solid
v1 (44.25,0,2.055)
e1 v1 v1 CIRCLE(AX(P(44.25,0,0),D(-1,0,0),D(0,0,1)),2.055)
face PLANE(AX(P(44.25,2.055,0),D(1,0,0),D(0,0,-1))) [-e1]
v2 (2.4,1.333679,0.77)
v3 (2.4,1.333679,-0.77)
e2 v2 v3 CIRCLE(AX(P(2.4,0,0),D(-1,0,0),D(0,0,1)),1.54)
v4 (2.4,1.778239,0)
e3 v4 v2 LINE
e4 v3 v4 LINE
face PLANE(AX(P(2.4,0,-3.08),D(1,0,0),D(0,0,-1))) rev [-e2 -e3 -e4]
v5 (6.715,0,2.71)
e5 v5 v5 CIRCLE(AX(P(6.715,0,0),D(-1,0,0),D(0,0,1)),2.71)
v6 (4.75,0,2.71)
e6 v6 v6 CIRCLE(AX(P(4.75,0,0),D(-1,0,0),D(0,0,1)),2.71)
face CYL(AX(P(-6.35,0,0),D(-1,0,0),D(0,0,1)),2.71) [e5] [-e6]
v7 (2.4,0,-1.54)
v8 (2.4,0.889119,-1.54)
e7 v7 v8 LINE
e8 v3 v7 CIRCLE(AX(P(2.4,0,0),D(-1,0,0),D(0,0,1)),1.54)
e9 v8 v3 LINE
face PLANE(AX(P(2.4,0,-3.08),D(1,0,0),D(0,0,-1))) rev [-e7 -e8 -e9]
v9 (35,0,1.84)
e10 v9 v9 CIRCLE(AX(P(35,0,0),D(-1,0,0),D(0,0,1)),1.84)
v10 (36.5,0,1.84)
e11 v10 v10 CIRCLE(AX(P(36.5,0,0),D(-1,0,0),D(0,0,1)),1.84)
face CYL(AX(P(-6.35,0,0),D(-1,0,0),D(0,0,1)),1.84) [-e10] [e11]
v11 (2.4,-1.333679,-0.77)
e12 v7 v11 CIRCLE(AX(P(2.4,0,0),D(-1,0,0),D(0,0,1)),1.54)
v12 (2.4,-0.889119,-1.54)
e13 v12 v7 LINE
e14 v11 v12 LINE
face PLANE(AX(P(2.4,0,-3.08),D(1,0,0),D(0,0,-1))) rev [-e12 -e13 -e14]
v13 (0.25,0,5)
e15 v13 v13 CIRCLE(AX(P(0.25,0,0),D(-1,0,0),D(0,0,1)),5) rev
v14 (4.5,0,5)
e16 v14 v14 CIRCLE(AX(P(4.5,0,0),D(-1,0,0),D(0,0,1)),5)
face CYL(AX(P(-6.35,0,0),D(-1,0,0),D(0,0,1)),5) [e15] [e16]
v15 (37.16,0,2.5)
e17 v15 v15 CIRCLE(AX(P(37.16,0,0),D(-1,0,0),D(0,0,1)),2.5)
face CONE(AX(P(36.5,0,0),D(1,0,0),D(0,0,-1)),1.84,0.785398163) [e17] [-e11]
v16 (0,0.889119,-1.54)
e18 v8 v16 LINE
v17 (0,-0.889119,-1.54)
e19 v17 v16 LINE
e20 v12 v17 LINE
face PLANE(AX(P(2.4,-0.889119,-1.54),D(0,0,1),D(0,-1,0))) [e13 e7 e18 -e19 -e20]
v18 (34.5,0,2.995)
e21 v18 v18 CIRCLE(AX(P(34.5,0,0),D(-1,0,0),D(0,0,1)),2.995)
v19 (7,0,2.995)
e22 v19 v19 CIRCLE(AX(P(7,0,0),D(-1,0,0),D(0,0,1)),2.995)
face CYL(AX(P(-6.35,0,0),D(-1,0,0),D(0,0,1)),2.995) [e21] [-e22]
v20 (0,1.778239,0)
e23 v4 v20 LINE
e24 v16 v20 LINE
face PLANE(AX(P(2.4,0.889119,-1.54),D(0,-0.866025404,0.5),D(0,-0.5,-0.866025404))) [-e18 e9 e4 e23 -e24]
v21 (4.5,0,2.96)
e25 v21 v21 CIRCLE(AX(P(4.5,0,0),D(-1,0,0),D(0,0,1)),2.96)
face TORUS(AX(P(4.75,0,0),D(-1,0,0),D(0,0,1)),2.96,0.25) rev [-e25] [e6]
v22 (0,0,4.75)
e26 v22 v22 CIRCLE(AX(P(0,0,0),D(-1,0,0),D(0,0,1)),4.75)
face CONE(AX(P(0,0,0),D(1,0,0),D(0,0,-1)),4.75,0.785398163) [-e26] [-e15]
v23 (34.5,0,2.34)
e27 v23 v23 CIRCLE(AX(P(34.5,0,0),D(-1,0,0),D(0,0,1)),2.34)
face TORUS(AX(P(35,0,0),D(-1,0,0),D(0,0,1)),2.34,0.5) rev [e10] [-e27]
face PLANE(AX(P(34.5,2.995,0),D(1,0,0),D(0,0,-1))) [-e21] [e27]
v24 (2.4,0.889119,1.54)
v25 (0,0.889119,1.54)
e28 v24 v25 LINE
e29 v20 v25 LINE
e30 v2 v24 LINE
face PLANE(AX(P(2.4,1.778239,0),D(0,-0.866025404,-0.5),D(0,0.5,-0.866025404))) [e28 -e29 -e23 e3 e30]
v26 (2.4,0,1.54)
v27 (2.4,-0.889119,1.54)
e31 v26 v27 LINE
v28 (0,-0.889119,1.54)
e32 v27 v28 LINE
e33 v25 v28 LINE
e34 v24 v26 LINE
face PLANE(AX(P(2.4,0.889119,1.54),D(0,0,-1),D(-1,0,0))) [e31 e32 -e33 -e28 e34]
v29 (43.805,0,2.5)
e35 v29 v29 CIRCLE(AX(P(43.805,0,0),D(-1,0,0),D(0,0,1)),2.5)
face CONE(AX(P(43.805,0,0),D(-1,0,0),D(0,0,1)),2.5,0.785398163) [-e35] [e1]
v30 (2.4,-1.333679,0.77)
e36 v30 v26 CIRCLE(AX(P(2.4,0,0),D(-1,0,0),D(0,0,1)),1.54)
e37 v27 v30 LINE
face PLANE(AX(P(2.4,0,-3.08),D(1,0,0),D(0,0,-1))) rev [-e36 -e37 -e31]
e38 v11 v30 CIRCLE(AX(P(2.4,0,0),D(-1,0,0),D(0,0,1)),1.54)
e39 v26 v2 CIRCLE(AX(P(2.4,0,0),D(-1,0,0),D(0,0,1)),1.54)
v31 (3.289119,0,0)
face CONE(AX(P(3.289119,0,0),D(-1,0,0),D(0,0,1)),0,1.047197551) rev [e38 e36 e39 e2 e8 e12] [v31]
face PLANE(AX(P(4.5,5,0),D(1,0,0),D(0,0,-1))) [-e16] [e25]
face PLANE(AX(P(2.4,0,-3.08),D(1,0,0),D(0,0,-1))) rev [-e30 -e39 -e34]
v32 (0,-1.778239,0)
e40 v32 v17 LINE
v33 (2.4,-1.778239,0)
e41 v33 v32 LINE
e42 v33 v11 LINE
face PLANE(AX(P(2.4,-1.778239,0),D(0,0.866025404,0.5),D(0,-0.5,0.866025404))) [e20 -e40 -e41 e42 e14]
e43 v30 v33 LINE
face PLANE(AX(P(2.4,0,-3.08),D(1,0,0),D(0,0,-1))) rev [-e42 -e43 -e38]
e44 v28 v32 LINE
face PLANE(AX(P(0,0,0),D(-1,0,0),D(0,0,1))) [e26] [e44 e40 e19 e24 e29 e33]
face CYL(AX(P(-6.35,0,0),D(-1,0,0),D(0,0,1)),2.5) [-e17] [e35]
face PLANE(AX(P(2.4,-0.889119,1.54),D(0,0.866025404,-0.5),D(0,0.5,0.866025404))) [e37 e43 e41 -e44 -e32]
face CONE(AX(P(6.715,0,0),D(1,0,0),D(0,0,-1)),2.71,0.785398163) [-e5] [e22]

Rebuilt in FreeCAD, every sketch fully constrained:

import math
import FreeCAD as App
import Part
import Sketcher
Q = App.Units.Quantity


def edges_at(feature, points):
    """Names of the edges that pass closest to the given points."""
    edges = feature.Shape.Edges
    near = lambda p: min(range(len(edges)), key=lambda i: edges[i].distToShape(Part.Vertex(*p))[0])
    return sorted({f"Edge{near(p) + 1}" for p in points})

doc = App.newDocument("Part")
params = doc.addObject("Spreadsheet::Sheet", "Params")
for row, (alias, value) in enumerate([
    ("sketch1_radius", "0.5 mm"),
    ("sketch1_height", "5 mm"),
    ("sketch1_radius2", "0.25 mm"),
    ("sketch1_width", "1.5 mm"),
    ("sketch1_width2", "27.5 mm"),
    ("revolution_angle", "360 deg"),
    ("chamfer_size", "0.25 mm"),
    ("sketch2_width", "2.4 mm"),
    ("sketch2_height", "1.54 mm"),
    ("groove_angle", "360 deg"),
    ("pocket1_length", "2.4 mm"),
], start=1):
    params.set(f"A{row}", alias)
    params.set(f"B{row}", "=" + value)
    params.setAlias(f"B{row}", alias)

body = doc.addObject("PartDesign::Body", "Body")

# Sketch on XY plane
sketch1 = body.newObject("Sketcher::SketchObject", "Sketch")
sketch1.AttachmentSupport = (doc.getObject("XY_Plane"), [""])
sketch1.MapMode = "FlatFace"
sketch1.addGeometry([
    Part.LineSegment(App.Vector(0, 5, 0), App.Vector(0, 0, 0)),  # 0
    Part.LineSegment(App.Vector(0, 0, 0), App.Vector(44.25, 0, 0)),  # 1
    Part.LineSegment(App.Vector(44.25, 0, 0), App.Vector(44.25, 2.06, 0)),  # 2
    Part.LineSegment(App.Vector(44.25, 2.06, 0), App.Vector(43.8, 2.5, 0)),  # 3
    Part.LineSegment(App.Vector(43.8, 2.5, 0), App.Vector(37.16, 2.5, 0)),  # 4
    Part.LineSegment(App.Vector(37.16, 2.5, 0), App.Vector(36.5, 1.84, 0)),  # 5
    Part.LineSegment(App.Vector(36.5, 1.84, 0), App.Vector(35, 1.84, 0)),  # 6
    Part.ArcOfCircle(Part.Circle(App.Vector(35, 2.34, 0), App.Vector(0, 0, 1), 0.5), math.radians(180), math.radians(270)),  # 7
    Part.LineSegment(App.Vector(34.5, 2.34, 0), App.Vector(34.5, 3, 0)),  # 8
    Part.LineSegment(App.Vector(34.5, 3, 0), App.Vector(7, 3, 0)),  # 9
    Part.LineSegment(App.Vector(7, 3, 0), App.Vector(6.71, 2.71, 0)),  # 10
    Part.LineSegment(App.Vector(6.71, 2.71, 0), App.Vector(4.75, 2.71, 0)),  # 11
    Part.ArcOfCircle(Part.Circle(App.Vector(4.75, 2.96, 0), App.Vector(0, 0, 1), 0.25), math.radians(-180), math.radians(-90)),  # 12
    Part.LineSegment(App.Vector(4.5, 2.96, 0), App.Vector(4.5, 5, 0)),  # 13
    Part.LineSegment(App.Vector(4.5, 5, 0), App.Vector(0, 5, 0)),  # 14
], False)
sketch1.addConstraint([
    Sketcher.Constraint("Coincident", 0, 2, 1, 1),
    Sketcher.Constraint("Coincident", 1, 2, 2, 1),
    Sketcher.Constraint("Coincident", 2, 2, 3, 1),
    Sketcher.Constraint("Coincident", 3, 2, 4, 1),
    Sketcher.Constraint("Coincident", 4, 2, 5, 1),
    Sketcher.Constraint("Coincident", 5, 2, 6, 1),
    Sketcher.Constraint("Tangent", 6, 2, 7, 2),
    Sketcher.Constraint("Tangent", 7, 1, 8, 1),
    Sketcher.Constraint("Coincident", 8, 2, 9, 1),
    Sketcher.Constraint("Coincident", 9, 2, 10, 1),
    Sketcher.Constraint("Coincident", 10, 2, 11, 1),
    Sketcher.Constraint("Tangent", 11, 2, 12, 2),
    Sketcher.Constraint("Tangent", 12, 1, 13, 1),
    Sketcher.Constraint("Coincident", 13, 2, 14, 1),
    Sketcher.Constraint("Coincident", 14, 2, 0, 1),
    Sketcher.Constraint("Vertical", 0),
    Sketcher.Constraint("Horizontal", 1),
    Sketcher.Constraint("Vertical", 2),
    Sketcher.Constraint("Horizontal", 4),
    Sketcher.Constraint("Horizontal", 6),
    Sketcher.Constraint("Vertical", 8),
    Sketcher.Constraint("Horizontal", 9),
    Sketcher.Constraint("Horizontal", 11),
    Sketcher.Constraint("Vertical", 13),
    Sketcher.Constraint("Horizontal", 14),
    Sketcher.Constraint("Coincident", 0, 2, -1, 1),
    Sketcher.Constraint("Perpendicular", 3, 5),
    Sketcher.Constraint("Parallel", 5, 10),
    Sketcher.Constraint("Radius", 7, Q("0.5 mm")),
    Sketcher.Constraint("DistanceY", 0, 2, 0, 1, Q("5 mm")),
    Sketcher.Constraint("Angle", 3, Q("135 deg")),
    Sketcher.Constraint("Radius", 12, Q("0.25 mm")),
    Sketcher.Constraint("DistanceX", 6, 2, 6, 1, Q("1.5 mm")),
    Sketcher.Constraint("DistanceX", 9, 2, 9, 1, Q("27.5 mm")),
    Sketcher.Constraint("DistanceX", 14, 2, 14, 1, Q("4.5 mm")),
    Sketcher.Constraint("DistanceX", -1, 1, 7, 3, Q("35 mm")),
    Sketcher.Constraint("DistanceX", 1, 1, 1, 2, Q("44.25 mm")),
    Sketcher.Constraint("DistanceY", 13, 1, 13, 2, Q("2.04 mm")),
    Sketcher.Constraint("DistanceY", -1, 1, 3, 2, Q("2.5 mm")),
    Sketcher.Constraint("DistanceX", 4, 2, 4, 1, Q("6.645 mm")),
    Sketcher.Constraint("DistanceX", 11, 2, 11, 1, Q("1.965 mm")),
    Sketcher.Constraint("DistanceY", 2, 1, 2, 2, Q("2.055 mm")),
])
sketch1.setExpression("Constraints[28]", "Params.sketch1_radius")
sketch1.setExpression("Constraints[29]", "Params.sketch1_height")
sketch1.setExpression("Constraints[31]", "Params.sketch1_radius2")
sketch1.setExpression("Constraints[32]", "Params.sketch1_width")
sketch1.setExpression("Constraints[33]", "Params.sketch1_width2")
revolution = body.newObject("PartDesign::Revolution", "Revolution")
revolution.Profile = sketch1
revolution.ReferenceAxis = (sketch1, ["H_Axis"])
revolution.setExpression("Angle", "Params.revolution_angle")
doc.recompute()

chamfer = body.newObject("PartDesign::Chamfer", "Chamfer")
chamfer.Base = (revolution, edges_at(revolution, [(0, 0, -5)]))
chamfer.setExpression("Size", "Params.chamfer_size")

# Sketch on XY plane
sketch2 = body.newObject("Sketcher::SketchObject", "Sketch001")
sketch2.AttachmentSupport = (doc.getObject("XY_Plane"), [""])
sketch2.MapMode = "FlatFace"
sketch2.addGeometry([
    Part.LineSegment(App.Vector(2.4, 1.5, 0), App.Vector(0, 1.5, 0)),
    Part.LineSegment(App.Vector(0, 1.5, 0), App.Vector(0, 0, 0)),
    Part.LineSegment(App.Vector(0, 0, 0), App.Vector(3.3, 0, 0)),
    Part.LineSegment(App.Vector(3.3, 0, 0), App.Vector(2.4, 1.5, 0)),
], False)
sketch2.addConstraint([
    Sketcher.Constraint("Coincident", 0, 2, 1, 1),
    Sketcher.Constraint("Coincident", 1, 2, 2, 1),
    Sketcher.Constraint("Coincident", 2, 2, 3, 1),
    Sketcher.Constraint("Coincident", 3, 2, 0, 1),
    Sketcher.Constraint("Horizontal", 0),
    Sketcher.Constraint("Vertical", 1),
    Sketcher.Constraint("Horizontal", 2),
    Sketcher.Constraint("Coincident", 1, 2, -1, 1),
    Sketcher.Constraint("Angle", 3, Q("120 deg")),
    Sketcher.Constraint("DistanceX", 0, 2, 0, 1, Q("2.4 mm")),
    Sketcher.Constraint("DistanceY", 1, 2, 1, 1, Q("1.54 mm")),
])
sketch2.setExpression("Constraints[9]", "Params.sketch2_width")
sketch2.setExpression("Constraints[10]", "Params.sketch2_height")
groove = body.newObject("PartDesign::Groove", "Groove")
groove.Profile = sketch2
groove.ReferenceAxis = (sketch2, ["H_Axis"])
groove.setExpression("Angle", "Params.groove_angle")

# Sketch on YZ plane
sketch3 = body.newObject("Sketcher::SketchObject", "Sketch002")
sketch3.AttachmentSupport = (doc.getObject("YZ_Plane"), [""])
sketch3.MapMode = "FlatFace"
sketch3.addGeometry([
    Part.LineSegment(App.Vector(0.9, -1.5, 0), App.Vector(-0.9, -1.5, 0)),  # 0
    Part.LineSegment(App.Vector(-0.9, -1.5, 0), App.Vector(-1.8, 0, 0)),  # 1
    Part.LineSegment(App.Vector(-1.8, 0, 0), App.Vector(-0.9, 1.5, 0)),  # 2
    Part.LineSegment(App.Vector(-0.9, 1.5, 0), App.Vector(0.9, 1.5, 0)),  # 3
    Part.LineSegment(App.Vector(0.9, 1.5, 0), App.Vector(1.8, 0, 0)),  # 4
    Part.LineSegment(App.Vector(1.8, 0, 0), App.Vector(0.9, -1.5, 0)),  # 5
], False)
sketch3.addConstraint([
    Sketcher.Constraint("Coincident", 0, 2, 1, 1),
    Sketcher.Constraint("Coincident", 1, 2, 2, 1),
    Sketcher.Constraint("Coincident", 2, 2, 3, 1),
    Sketcher.Constraint("Coincident", 3, 2, 4, 1),
    Sketcher.Constraint("Coincident", 4, 2, 5, 1),
    Sketcher.Constraint("Coincident", 5, 2, 0, 1),
    Sketcher.Constraint("Horizontal", 0),
    Sketcher.Constraint("Horizontal", 3),
    Sketcher.Constraint("Symmetric", 0, 2, 3, 2, -1, 1),
    Sketcher.Constraint("Symmetric", 1, 2, 4, 2, -1, 1),
    Sketcher.Constraint("PointOnObject", 1, 2, -1),
    Sketcher.Constraint("Parallel", 2, 5),
    Sketcher.Constraint("Vertical", 0, 2, 2, 2),
    Sketcher.Constraint("Angle", 1, Q("120 deg")),
    Sketcher.Constraint("DistanceY", 0, 2, -1, 1, Q("1.54 mm")),
    Sketcher.Constraint("DistanceX", 0, 2, 0, 1, Q("1.778239 mm")),
])
pocket1 = body.newObject("PartDesign::Pocket", "Pocket")
pocket1.Profile = sketch3
pocket1.setExpression("Length", "Params.pocket1_length")
pocket1.Reversed = True

doc.recompute()
